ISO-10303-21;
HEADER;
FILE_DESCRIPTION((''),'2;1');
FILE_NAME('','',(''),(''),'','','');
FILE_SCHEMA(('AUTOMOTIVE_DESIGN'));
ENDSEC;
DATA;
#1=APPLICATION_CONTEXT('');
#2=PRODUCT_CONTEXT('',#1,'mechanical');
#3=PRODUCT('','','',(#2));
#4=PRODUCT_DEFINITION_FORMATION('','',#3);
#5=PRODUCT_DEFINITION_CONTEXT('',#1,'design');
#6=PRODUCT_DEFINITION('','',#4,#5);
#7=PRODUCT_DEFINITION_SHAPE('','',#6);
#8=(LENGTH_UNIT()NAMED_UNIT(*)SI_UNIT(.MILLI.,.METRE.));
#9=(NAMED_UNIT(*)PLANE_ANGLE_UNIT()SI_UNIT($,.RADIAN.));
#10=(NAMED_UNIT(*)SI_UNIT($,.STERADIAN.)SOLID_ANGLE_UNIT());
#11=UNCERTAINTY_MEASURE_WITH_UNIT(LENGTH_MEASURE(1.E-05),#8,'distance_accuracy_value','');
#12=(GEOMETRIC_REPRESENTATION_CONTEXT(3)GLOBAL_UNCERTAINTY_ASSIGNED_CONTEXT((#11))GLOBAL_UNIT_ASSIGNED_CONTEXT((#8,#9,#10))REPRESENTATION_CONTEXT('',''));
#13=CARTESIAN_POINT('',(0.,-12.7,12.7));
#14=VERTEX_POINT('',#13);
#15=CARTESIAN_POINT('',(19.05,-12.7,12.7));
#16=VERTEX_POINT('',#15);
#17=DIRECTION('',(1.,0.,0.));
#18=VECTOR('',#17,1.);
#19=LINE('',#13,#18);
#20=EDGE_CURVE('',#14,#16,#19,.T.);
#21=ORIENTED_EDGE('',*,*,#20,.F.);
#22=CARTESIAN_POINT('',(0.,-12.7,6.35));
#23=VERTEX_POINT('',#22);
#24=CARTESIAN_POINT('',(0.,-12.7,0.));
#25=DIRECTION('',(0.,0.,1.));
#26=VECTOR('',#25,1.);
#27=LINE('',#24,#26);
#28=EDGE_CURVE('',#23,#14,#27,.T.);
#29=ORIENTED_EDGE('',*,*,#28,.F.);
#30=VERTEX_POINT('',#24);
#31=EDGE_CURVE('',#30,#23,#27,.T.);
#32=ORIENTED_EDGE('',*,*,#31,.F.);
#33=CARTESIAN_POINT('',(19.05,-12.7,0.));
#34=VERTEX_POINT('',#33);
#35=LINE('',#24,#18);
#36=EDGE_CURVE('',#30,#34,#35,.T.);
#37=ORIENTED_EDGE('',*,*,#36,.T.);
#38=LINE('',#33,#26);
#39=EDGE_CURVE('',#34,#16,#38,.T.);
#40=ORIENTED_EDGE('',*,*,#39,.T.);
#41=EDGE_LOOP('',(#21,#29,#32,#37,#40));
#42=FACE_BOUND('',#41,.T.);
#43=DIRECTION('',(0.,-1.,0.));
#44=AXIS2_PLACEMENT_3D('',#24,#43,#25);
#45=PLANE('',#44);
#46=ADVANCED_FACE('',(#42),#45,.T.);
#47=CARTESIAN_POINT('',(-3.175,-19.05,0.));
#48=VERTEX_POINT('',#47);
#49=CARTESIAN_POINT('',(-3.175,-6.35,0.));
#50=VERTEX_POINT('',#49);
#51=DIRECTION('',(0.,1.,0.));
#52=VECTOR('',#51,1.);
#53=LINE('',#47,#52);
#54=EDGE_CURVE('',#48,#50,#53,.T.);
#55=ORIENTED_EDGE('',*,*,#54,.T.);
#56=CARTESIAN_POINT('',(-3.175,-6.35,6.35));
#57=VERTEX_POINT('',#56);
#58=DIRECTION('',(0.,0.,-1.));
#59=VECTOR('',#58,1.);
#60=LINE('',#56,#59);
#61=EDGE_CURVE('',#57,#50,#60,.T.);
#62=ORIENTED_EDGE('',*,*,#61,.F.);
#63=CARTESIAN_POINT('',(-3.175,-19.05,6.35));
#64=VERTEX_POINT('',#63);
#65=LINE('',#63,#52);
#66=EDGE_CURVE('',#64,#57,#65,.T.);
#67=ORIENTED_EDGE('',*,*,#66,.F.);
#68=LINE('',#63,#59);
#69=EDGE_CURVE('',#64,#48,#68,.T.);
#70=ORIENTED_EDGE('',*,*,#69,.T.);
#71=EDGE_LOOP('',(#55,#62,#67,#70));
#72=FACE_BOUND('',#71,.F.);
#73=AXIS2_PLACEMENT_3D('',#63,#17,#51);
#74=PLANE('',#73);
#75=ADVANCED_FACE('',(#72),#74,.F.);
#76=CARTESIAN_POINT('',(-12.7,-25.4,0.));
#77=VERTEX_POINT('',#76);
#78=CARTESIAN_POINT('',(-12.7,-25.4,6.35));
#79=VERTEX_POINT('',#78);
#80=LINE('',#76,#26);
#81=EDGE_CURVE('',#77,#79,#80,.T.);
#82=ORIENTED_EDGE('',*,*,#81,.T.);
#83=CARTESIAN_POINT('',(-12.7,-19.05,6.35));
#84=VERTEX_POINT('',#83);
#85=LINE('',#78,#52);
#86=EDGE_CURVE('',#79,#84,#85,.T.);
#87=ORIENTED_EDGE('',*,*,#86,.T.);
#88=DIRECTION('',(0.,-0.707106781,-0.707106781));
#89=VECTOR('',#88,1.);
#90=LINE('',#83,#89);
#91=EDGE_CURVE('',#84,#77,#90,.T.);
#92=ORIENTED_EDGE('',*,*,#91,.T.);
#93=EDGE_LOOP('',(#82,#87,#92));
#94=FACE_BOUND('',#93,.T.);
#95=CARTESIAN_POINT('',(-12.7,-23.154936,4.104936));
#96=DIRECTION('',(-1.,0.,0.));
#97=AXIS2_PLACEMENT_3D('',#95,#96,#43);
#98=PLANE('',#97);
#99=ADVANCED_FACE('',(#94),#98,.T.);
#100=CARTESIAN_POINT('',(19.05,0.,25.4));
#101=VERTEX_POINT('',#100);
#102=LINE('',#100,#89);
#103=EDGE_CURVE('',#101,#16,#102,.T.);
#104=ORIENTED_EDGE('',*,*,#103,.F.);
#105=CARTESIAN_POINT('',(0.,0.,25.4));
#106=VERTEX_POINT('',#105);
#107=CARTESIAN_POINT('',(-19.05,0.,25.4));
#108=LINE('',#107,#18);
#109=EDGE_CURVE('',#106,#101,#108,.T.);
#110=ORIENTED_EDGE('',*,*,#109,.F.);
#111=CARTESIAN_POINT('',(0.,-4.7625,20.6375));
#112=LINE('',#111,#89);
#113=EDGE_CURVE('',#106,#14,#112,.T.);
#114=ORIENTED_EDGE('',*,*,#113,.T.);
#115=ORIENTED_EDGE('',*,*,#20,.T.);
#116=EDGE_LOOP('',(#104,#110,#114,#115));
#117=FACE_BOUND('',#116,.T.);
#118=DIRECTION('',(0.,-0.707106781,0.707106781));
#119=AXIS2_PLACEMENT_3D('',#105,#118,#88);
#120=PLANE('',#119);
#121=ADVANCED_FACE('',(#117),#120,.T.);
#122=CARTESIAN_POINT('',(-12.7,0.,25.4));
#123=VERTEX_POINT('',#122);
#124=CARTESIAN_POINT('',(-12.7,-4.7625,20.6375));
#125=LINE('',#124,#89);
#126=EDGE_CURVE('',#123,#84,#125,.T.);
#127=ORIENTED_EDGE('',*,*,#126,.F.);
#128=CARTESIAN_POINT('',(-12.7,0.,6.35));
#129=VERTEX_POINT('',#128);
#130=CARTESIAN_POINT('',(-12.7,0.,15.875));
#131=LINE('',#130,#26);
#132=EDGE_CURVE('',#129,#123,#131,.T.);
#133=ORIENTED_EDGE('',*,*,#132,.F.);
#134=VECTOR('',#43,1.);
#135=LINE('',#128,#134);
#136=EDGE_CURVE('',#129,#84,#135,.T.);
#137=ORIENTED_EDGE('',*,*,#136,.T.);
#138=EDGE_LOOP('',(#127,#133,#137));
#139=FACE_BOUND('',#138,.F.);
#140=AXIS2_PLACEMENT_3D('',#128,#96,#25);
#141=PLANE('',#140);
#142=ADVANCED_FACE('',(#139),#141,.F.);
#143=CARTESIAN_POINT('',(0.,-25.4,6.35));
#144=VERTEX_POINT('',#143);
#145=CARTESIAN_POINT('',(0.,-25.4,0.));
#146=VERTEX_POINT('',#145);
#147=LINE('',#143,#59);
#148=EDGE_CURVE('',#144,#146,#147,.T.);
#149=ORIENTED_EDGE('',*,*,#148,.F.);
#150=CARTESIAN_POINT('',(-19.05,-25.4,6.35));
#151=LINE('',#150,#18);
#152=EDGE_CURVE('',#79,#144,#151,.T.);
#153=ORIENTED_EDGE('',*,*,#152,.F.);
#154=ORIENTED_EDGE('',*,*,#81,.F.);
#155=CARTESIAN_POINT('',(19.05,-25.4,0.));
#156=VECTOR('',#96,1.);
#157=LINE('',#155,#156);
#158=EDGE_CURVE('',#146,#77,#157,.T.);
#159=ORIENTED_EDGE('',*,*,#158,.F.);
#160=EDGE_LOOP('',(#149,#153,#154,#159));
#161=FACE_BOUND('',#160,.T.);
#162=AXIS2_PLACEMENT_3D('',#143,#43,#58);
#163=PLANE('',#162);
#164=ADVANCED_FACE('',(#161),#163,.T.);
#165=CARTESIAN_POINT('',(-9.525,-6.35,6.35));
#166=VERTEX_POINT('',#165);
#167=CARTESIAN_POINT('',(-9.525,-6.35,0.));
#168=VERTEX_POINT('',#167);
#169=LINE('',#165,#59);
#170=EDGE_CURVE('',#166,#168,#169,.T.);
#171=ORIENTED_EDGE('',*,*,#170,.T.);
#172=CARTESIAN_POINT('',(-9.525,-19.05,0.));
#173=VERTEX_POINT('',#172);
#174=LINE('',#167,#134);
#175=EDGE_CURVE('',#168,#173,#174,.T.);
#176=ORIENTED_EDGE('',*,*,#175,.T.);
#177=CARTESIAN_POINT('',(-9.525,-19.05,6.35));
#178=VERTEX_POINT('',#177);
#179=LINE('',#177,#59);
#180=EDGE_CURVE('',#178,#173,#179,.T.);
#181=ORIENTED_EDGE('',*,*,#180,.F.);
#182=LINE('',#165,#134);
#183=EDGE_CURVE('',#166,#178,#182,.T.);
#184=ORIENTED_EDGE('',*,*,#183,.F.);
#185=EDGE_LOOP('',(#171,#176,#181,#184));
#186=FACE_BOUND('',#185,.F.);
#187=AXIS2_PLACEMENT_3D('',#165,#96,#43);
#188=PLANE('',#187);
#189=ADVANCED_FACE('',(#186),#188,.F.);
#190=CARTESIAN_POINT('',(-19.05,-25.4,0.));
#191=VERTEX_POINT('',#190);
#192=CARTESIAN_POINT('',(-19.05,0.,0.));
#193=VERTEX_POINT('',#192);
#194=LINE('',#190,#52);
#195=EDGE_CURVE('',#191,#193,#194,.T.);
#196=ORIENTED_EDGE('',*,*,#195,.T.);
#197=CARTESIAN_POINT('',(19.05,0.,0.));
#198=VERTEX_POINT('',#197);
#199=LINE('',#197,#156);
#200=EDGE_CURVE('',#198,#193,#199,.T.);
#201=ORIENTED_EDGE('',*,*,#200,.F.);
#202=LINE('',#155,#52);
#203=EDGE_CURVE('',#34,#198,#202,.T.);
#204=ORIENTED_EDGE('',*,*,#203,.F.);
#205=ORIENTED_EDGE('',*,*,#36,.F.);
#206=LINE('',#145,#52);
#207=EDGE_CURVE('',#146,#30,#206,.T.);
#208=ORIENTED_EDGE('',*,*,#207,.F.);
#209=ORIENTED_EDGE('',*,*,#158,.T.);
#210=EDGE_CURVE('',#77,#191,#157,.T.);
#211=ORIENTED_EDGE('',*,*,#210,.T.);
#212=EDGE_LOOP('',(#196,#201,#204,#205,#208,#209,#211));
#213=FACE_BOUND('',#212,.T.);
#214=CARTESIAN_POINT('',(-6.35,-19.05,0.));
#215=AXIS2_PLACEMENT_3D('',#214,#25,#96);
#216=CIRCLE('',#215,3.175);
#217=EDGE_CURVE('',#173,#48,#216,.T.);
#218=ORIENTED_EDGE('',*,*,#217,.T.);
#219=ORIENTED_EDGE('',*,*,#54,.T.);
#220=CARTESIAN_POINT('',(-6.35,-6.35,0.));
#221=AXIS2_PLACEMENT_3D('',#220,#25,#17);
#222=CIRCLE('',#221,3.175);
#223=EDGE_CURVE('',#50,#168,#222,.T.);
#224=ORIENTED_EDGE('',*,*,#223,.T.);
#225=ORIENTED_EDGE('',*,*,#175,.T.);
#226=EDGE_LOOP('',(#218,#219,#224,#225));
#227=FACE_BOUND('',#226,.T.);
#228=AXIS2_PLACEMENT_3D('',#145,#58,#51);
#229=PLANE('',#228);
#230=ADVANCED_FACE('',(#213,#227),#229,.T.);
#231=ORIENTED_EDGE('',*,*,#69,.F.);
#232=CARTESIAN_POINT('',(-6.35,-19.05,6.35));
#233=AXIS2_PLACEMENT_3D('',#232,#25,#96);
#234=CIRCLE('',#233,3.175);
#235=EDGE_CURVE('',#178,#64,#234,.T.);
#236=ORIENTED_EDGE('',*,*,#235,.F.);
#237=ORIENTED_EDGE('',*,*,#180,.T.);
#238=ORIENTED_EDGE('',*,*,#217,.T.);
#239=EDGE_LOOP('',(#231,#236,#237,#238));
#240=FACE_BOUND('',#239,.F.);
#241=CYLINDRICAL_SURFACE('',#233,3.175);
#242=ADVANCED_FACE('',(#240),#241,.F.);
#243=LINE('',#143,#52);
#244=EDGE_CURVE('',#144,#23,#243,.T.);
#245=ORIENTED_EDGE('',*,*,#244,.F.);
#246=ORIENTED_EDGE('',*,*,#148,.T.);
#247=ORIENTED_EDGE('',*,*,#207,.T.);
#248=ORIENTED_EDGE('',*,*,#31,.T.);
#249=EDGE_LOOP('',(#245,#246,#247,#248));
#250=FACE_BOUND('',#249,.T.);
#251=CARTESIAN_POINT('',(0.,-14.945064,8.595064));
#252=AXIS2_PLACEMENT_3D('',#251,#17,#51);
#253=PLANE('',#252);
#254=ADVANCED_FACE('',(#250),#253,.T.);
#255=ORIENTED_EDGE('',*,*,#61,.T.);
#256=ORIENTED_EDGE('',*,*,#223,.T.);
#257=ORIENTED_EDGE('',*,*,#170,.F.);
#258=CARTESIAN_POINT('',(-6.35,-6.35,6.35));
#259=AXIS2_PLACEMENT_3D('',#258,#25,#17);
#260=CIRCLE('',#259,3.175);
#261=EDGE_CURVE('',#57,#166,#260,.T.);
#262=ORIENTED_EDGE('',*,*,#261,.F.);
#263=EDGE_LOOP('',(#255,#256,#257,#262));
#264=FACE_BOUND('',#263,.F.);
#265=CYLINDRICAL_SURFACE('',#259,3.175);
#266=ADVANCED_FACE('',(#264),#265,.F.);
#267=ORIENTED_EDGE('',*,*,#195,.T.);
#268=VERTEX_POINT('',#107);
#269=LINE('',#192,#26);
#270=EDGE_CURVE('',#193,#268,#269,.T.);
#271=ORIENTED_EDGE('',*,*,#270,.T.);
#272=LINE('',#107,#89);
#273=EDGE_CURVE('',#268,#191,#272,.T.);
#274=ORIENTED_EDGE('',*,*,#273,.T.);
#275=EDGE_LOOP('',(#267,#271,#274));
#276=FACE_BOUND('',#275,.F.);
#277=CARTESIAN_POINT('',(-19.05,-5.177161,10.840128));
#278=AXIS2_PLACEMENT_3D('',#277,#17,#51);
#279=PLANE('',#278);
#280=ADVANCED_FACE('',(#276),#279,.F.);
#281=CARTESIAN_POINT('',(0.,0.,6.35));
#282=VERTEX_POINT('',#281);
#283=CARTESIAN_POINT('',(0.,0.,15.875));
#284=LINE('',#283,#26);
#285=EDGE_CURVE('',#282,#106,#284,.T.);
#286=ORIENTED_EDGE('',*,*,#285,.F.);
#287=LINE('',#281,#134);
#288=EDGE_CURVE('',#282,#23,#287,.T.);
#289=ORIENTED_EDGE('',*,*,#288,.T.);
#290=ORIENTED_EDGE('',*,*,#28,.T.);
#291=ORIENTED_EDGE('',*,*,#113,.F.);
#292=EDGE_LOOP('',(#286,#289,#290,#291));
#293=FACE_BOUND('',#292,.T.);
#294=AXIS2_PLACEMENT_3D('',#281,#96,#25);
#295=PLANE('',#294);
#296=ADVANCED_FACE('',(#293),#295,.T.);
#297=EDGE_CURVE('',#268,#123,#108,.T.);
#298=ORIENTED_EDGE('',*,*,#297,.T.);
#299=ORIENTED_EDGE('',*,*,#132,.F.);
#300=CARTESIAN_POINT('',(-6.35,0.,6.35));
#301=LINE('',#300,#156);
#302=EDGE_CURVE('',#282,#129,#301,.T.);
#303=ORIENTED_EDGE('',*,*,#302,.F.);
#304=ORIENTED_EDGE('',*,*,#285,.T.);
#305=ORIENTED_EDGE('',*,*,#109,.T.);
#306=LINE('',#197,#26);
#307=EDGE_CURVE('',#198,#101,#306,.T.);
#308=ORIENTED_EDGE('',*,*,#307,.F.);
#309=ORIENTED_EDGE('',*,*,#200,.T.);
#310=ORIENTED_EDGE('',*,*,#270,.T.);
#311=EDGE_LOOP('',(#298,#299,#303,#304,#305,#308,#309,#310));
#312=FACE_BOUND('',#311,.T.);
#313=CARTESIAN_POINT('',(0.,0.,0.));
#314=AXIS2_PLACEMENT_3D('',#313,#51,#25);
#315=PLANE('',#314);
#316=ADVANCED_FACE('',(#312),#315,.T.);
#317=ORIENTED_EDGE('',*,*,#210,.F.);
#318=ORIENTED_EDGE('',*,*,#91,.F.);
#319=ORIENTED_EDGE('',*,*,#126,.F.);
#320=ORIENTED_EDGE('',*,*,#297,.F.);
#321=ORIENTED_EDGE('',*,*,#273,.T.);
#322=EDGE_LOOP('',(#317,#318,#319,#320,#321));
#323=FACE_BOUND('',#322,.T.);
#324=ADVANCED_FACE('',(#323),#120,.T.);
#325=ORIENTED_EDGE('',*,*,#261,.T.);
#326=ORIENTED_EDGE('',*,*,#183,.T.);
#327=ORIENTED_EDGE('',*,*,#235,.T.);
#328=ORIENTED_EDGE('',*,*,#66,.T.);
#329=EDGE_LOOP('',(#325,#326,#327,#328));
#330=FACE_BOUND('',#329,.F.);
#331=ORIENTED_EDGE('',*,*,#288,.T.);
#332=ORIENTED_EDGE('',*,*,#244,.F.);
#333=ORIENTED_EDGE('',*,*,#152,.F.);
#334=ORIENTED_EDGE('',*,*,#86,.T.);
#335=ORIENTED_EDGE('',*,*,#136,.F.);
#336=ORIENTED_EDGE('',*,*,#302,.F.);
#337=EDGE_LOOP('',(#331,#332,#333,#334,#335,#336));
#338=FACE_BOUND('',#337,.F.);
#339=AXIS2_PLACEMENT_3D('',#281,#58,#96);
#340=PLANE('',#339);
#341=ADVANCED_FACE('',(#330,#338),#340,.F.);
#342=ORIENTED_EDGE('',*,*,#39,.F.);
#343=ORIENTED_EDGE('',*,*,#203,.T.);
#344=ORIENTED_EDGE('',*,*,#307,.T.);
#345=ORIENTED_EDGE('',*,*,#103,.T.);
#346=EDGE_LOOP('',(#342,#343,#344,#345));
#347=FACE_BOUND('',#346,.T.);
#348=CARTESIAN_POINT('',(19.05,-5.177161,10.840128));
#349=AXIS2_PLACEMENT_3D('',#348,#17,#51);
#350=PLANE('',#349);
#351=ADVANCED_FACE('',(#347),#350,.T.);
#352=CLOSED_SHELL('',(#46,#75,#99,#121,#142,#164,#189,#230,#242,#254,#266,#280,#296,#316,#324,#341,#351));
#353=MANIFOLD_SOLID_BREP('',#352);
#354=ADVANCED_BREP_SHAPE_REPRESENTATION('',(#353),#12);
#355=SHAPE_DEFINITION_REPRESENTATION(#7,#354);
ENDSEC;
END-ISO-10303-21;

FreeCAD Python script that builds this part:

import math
import FreeCAD as App
import Part
import Sketcher
from FreeCAD import Vector
Q = App.Units.Quantity


def add_polygon(sketch, points):
    """Adds a closed chain of lines whose ends are joined by coincident constraints."""
    first, n = sketch.GeometryCount, len(points)
    for a, b in zip(points, points[1:] + points[:1]):
        sketch.addGeometry(Part.LineSegment(App.Vector(*a, 0), App.Vector(*b, 0)), False)
    for i in range(n):
        sketch.addConstraint(Sketcher.Constraint("Coincident", first + i, 2, first + (i + 1) % n, 1))

doc = App.newDocument("Part")
body = doc.addObject("PartDesign::Body", "Body")

sketch1 = body.newObject("Sketcher::SketchObject", "Sketch")
sketch1.AttachmentSupport = (doc.getObject("YZ_Plane"), [""])
sketch1.MapMode = "FlatFace"
add_polygon(sketch1, [(0, 0), (0, 25.4), (-19.05, 6.35), (-25.4, 6.35), (-25.4, 0)])
sketch1.addConstraint(Sketcher.Constraint("Vertical", 0))
sketch1.addConstraint(Sketcher.Constraint("Horizontal", 2))
sketch1.addConstraint(Sketcher.Constraint("Vertical", 3))
sketch1.addConstraint(Sketcher.Constraint("Horizontal", 4))
sketch1.addConstraint(Sketcher.Constraint("Coincident", 4, 2, -1, 1))
sketch1.addConstraint(Sketcher.Constraint("Equal", 4, 0))
sketch1.addConstraint(Sketcher.Constraint("Equal", 2, 3))
sketch1.addConstraint(Sketcher.Constraint("DistanceX", 4, 1, 4, 2, Q("1 in")))
sketch1.addConstraint(Sketcher.Constraint("DistanceX", 2, 2, 2, 1, Q("0.25 in")))
pad1 = body.newObject("PartDesign::Pad", "Pad")
pad1.Profile = sketch1
pad1.Length = Q("1.5 in")
pad1.Midplane = True

sketch2 = body.newObject("Sketcher::SketchObject", "Sketch001")
sketch2.AttachmentSupport = (doc.getObject("YZ_Plane"), [""])
sketch2.MapMode = "FlatFace"
add_polygon(sketch2, [(-12.7, 12.7), (-19.05, 6.35), (-25.4, 6.35), (-25.4, 0), (-12.7, 0)])
sketch2.addConstraint(Sketcher.Constraint("Horizontal", 1))
sketch2.addConstraint(Sketcher.Constraint("Vertical", 2))
sketch2.addConstraint(Sketcher.Constraint("Horizontal", 3))
sketch2.addConstraint(Sketcher.Constraint("Vertical", 4))
sketch2.addConstraint(Sketcher.Constraint("PointOnObject", 2, 2, -1))
sketch2.addConstraint(Sketcher.Constraint("Equal", 1, 2))
sketch2.addConstraint(Sketcher.Constraint("Equal", 3, 4))
sketch2.addConstraint(Sketcher.Constraint("DistanceX", 3, 1, 3, 2, Q("0.5 in")))
sketch2.addConstraint(Sketcher.Constraint("DistanceX", 1, 2, -1, 1, Q("1 in")))
sketch2.addConstraint(Sketcher.Constraint("DistanceX", 1, 2, 1, 1, Q("0.25 in")))
pocket1 = body.newObject("PartDesign::Pocket", "Pocket")
pocket1.Profile = sketch2
pocket1.Length = Q("0.75 in")
pocket1.Reversed = True

sketch3 = body.newObject("Sketcher::SketchObject", "Sketch002")
sketch3.AttachmentSupport = (doc.getObject("XZ_Plane"), [""])
sketch3.MapMode = "FlatFace"
add_polygon(sketch3, [(0, 25.4), (0, 6.35), (-12.7, 6.35), (-12.7, 25.4)])
sketch3.addConstraint(Sketcher.Constraint("Vertical", 0))
sketch3.addConstraint(Sketcher.Constraint("Horizontal", 1))
sketch3.addConstraint(Sketcher.Constraint("Vertical", 2))
sketch3.addConstraint(Sketcher.Constraint("Horizontal", 3))
sketch3.addConstraint(Sketcher.Constraint("PointOnObject", 0, 2, -2))
sketch3.addConstraint(Sketcher.Constraint("DistanceX", 1, 2, 1, 1, Q("0.5 in")))
sketch3.addConstraint(Sketcher.Constraint("DistanceY", -1, 1, 2, 2, Q("1 in")))
sketch3.addConstraint(Sketcher.Constraint("DistanceY", 0, 2, 0, 1, Q("0.75 in")))
pocket2 = body.newObject("PartDesign::Pocket", "Pocket001")
pocket2.Profile = sketch3
pocket2.Length = Q("1 in")
pocket2.Reversed = True

sketch4 = body.newObject("Sketcher::SketchObject", "Sketch003")
sketch4.AttachmentSupport = (doc.getObject("YZ_Plane"), [""])
sketch4.MapMode = "FlatFace"
sketch4.AttachmentOffset = App.Placement(Vector(0, 0, -0.75 * 25.4), App.Rotation())
add_polygon(sketch4, [(-25.4, 6.35), (-19.05, 6.35), (-25.4, 0)])
sketch4.addConstraint(Sketcher.Constraint("Horizontal", 0))
sketch4.addConstraint(Sketcher.Constraint("Vertical", 2))
sketch4.addConstraint(Sketcher.Constraint("PointOnObject", 1, 2, -1))
sketch4.addConstraint(Sketcher.Constraint("Equal", 0, 2))
sketch4.addConstraint(Sketcher.Constraint("DistanceX", 1, 2, -1, 1, Q("1 in")))
sketch4.addConstraint(Sketcher.Constraint("DistanceX", 0, 1, 0, 2, Q("0.25 in")))
pocket3 = body.newObject("PartDesign::Pocket", "Pocket002")
pocket3.Profile = sketch4
pocket3.Length = Q("0.25 in")
pocket3.Reversed = True

sketch5 = body.newObject("Sketcher::SketchObject", "Sketch004")
sketch5.AttachmentSupport = (doc.getObject("XY_Plane"), [""])
sketch5.MapMode = "FlatFace"
sketch5.AttachmentOffset = App.Placement(Vector(0, 0, 0.25 * 25.4), App.Rotation())
sketch5.addGeometry(Part.ArcOfCircle(Part.Circle(Vector(-6.35, -6.35, 0), Vector(0, 0, 1), 3.175), math.radians(0), math.radians(180)), False)
sketch5.addGeometry(Part.LineSegment(Vector(-9.525, -6.35, 0), Vector(-9.525, -19.05, 0)), False)
sketch5.addGeometry(Part.ArcOfCircle(Part.Circle(Vector(-6.35, -19.05, 0), Vector(0, 0, 1), 3.175), math.radians(180), math.radians(360)), False)
sketch5.addGeometry(Part.LineSegment(Vector(-3.175, -19.05, 0), Vector(-3.175, -6.35, 0)), False)
sketch5.addConstraint(Sketcher.Constraint("Tangent", 0, 2, 1, 1))
sketch5.addConstraint(Sketcher.Constraint("Tangent", 1, 2, 2, 1))
sketch5.addConstraint(Sketcher.Constraint("Tangent", 2, 2, 3, 1))
sketch5.addConstraint(Sketcher.Constraint("Tangent", 3, 2, 0, 1))
sketch5.addConstraint(Sketcher.Constraint("Vertical", 1))
sketch5.addConstraint(Sketcher.Constraint("Vertical", 3))
sketch5.addConstraint(Sketcher.Constraint("DistanceY", 1, 2, 1, 1, Q("0.5 in")))
sketch5.addConstraint(Sketcher.Constraint("Radius", 0, Q("0.125 in")))
sketch5.addConstraint(Sketcher.Constraint("DistanceX", 0, 3, -1, 1, Q("0.25 in")))
sketch5.addConstraint(Sketcher.Constraint("DistanceY", 0, 3, -1, 1, Q("0.25 in")))
pocket4 = body.newObject("PartDesign::Pocket", "Pocket003")
pocket4.Profile = sketch5
pocket4.Type = "ThroughAll"

doc.recompute()
